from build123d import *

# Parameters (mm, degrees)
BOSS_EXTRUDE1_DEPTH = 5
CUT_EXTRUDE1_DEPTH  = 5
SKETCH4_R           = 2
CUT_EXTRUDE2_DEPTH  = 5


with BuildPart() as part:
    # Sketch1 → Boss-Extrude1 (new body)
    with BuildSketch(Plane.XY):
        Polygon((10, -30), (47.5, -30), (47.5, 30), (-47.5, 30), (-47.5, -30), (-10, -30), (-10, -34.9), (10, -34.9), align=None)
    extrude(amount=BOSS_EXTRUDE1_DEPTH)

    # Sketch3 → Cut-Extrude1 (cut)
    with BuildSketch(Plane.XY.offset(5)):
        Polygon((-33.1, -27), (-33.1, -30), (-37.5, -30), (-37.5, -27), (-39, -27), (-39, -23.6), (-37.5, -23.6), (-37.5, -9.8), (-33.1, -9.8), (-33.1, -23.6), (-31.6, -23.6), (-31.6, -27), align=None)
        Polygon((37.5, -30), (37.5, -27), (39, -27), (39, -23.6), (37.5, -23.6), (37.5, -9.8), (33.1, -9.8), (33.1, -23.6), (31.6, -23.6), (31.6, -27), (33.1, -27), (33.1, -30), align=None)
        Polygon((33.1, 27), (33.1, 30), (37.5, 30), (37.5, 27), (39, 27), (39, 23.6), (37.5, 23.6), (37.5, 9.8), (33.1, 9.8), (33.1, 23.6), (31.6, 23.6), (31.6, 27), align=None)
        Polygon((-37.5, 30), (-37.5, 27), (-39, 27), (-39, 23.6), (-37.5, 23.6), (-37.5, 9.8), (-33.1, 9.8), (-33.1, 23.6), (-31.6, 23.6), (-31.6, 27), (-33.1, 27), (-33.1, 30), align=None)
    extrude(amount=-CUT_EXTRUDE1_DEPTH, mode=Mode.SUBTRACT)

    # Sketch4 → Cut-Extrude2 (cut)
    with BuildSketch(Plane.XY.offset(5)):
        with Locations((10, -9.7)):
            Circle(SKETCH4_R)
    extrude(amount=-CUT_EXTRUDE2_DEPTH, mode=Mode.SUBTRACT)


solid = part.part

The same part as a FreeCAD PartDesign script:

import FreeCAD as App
import Part
import Sketcher
from FreeCAD import Vector
Q = App.Units.Quantity

doc = App.newDocument("Part")
params = doc.addObject("Spreadsheet::Sheet", "Params")
for row, (alias, value) in enumerate([
    ("sketch1_width", "95 mm"),
    ("sketch1_width2", "20 mm"),
    ("sketch1_height", "60 mm"),
    ("sketch1_height2", "4.9 mm"),
    ("pad1_length", "5 mm"),
    ("sketch2_height", "3 mm"),
    ("sketch2_width", "1.5 mm"),
    ("sketch2_width2", "4.4 mm"),
    ("sketch2_height2", "3.4 mm"),
    ("sketch2_height3", "13.8 mm"),
    ("pocket1_length", "5 mm"),
    ("sketch3_diameter", "4 mm"),
    ("pocket2_length", "5 mm"),
], start=1):
    params.set(f"A{row}", alias)
    params.set(f"B{row}", "=" + value)
    params.setAlias(f"B{row}", alias)

body = doc.addObject("PartDesign::Body", "Body")

sketch1 = doc.addObject("Sketcher::SketchObject", "Sketch")
body.addObject(sketch1)
sketch1.AttachmentSupport = (doc.XY_Plane, [""])
sketch1.MapMode = "FlatFace"
sketch1.addGeometry([
    Part.LineSegment(Vector(10, -30, 0), Vector(47.5, -30, 0)),
    Part.LineSegment(Vector(47.5, -30, 0), Vector(47.5, 30, 0)),
    Part.LineSegment(Vector(47.5, 30, 0), Vector(-47.5, 30, 0)),
    Part.LineSegment(Vector(-47.5, 30, 0), Vector(-47.5, -30, 0)),
    Part.LineSegment(Vector(-47.5, -30, 0), Vector(-10, -30, 0)),
    Part.LineSegment(Vector(-10, -30, 0), Vector(-10, -34.9, 0)),
    Part.LineSegment(Vector(-10, -34.9, 0), Vector(10, -34.9, 0)),
    Part.LineSegment(Vector(10, -34.9, 0), Vector(10, -30, 0)),
], False)
sketch1.addConstraint([
    Sketcher.Constraint("Coincident", 0, 2, 1, 1),
    Sketcher.Constraint("Coincident", 1, 2, 2, 1),
    Sketcher.Constraint("Coincident", 2, 2, 3, 1),
    Sketcher.Constraint("Coincident", 3, 2, 4, 1),
    Sketcher.Constraint("Coincident", 4, 2, 5, 1),
    Sketcher.Constraint("Coincident", 5, 2, 6, 1),
    Sketcher.Constraint("Coincident", 6, 2, 7, 1),
    Sketcher.Constraint("Coincident", 7, 2, 0, 1),
    Sketcher.Constraint("Horizontal", 0),
    Sketcher.Constraint("Vertical", 1),
    Sketcher.Constraint("Horizontal", 2),
    Sketcher.Constraint("Vertical", 3),
    Sketcher.Constraint("Horizontal", 4),
    Sketcher.Constraint("Vertical", 5),
    Sketcher.Constraint("Horizontal", 6),
    Sketcher.Constraint("Vertical", 7),
    Sketcher.Constraint("Symmetric", 0, 2, 2, 2, -1, 1),
    Sketcher.Constraint("Symmetric", 4, 2, 7, 2, -2),
    Sketcher.Constraint("DistanceX", 2, 2, 2, 1, Q("95 mm")),
    Sketcher.Constraint("DistanceX", 6, 1, 6, 2, Q("20 mm")),
    Sketcher.Constraint("DistanceY", 1, 1, 1, 2, Q("60 mm")),
    Sketcher.Constraint("DistanceY", 5, 2, 5, 1, Q("4.9 mm")),
])
sketch1.setExpression("Constraints[18]", "Params.sketch1_width")
sketch1.setExpression("Constraints[19]", "Params.sketch1_width2")
sketch1.setExpression("Constraints[20]", "Params.sketch1_height")
sketch1.setExpression("Constraints[21]", "Params.sketch1_height2")
pad1 = doc.addObject("PartDesign::Pad", "Pad")
body.addObject(pad1)
pad1.Profile = sketch1
pad1.setExpression("Length", "Params.pad1_length")

sketch2 = doc.addObject("Sketcher::SketchObject", "Sketch001")
body.addObject(sketch2)
sketch2.AttachmentSupport = (doc.XY_Plane, [""])
sketch2.MapMode = "FlatFace"
sketch2.AttachmentOffset = App.Placement(Vector(0, 0, 5), App.Rotation())
sketch2.addGeometry([
    Part.LineSegment(Vector(-33.1, -30, 0), Vector(-33.1, -27, 0)),
    Part.LineSegment(Vector(-33.1, -27, 0), Vector(-31.6, -27, 0)),
    Part.LineSegment(Vector(-31.6, -27, 0), Vector(-31.6, -23.6, 0)),
    Part.LineSegment(Vector(-31.6, -23.6, 0), Vector(-33.1, -23.6, 0)),
    Part.LineSegment(Vector(-33.1, -23.6, 0), Vector(-33.1, -9.8, 0)),
    Part.LineSegment(Vector(-33.1, -9.8, 0), Vector(-37.5, -9.8, 0)),
    Part.LineSegment(Vector(-37.5, -9.8, 0), Vector(-37.5, -23.6, 0)),
    Part.LineSegment(Vector(-37.5, -23.6, 0), Vector(-39, -23.6, 0)),
    Part.LineSegment(Vector(-39, -23.6, 0), Vector(-39, -27, 0)),
    Part.LineSegment(Vector(-39, -27, 0), Vector(-37.5, -27, 0)),
    Part.LineSegment(Vector(-37.5, -27, 0), Vector(-37.5, -30, 0)),
    Part.LineSegment(Vector(-37.5, -30, 0), Vector(-33.1, -30, 0)),
    Part.LineSegment(Vector(37.5, -30, 0), Vector(37.5, -27, 0)),
    Part.LineSegment(Vector(37.5, -27, 0), Vector(39, -27, 0)),
    Part.LineSegment(Vector(39, -27, 0), Vector(39, -23.6, 0)),
    Part.LineSegment(Vector(39, -23.6, 0), Vector(37.5, -23.6, 0)),
    Part.LineSegment(Vector(37.5, -23.6, 0), Vector(37.5, -9.8, 0)),
    Part.LineSegment(Vector(37.5, -9.8, 0), Vector(33.1, -9.8, 0)),
    Part.LineSegment(Vector(33.1, -9.8, 0), Vector(33.1, -23.6, 0)),
    Part.LineSegment(Vector(33.1, -23.6, 0), Vector(31.6, -23.6, 0)),
    Part.LineSegment(Vector(31.6, -23.6, 0), Vector(31.6, -27, 0)),
    Part.LineSegment(Vector(31.6, -27, 0), Vector(33.1, -27, 0)),
    Part.LineSegment(Vector(33.1, -27, 0), Vector(33.1, -30, 0)),
    Part.LineSegment(Vector(33.1, -30, 0), Vector(37.5, -30, 0)),
    Part.LineSegment(Vector(33.1, 30, 0), Vector(33.1, 27, 0)),
    Part.LineSegment(Vector(33.1, 27, 0), Vector(31.6, 27, 0)),
    Part.LineSegment(Vector(31.6, 27, 0), Vector(31.6, 23.6, 0)),
    Part.LineSegment(Vector(31.6, 23.6, 0), Vector(33.1, 23.6, 0)),
    Part.LineSegment(Vector(33.1, 23.6, 0), Vector(33.1, 9.8, 0)),
    Part.LineSegment(Vector(33.1, 9.8, 0), Vector(37.5, 9.8, 0)),
    Part.LineSegment(Vector(37.5, 9.8, 0), Vector(37.5, 23.6, 0)),
    Part.LineSegment(Vector(37.5, 23.6, 0), Vector(39, 23.6, 0)),
    Part.LineSegment(Vector(39, 23.6, 0), Vector(39, 27, 0)),
    Part.LineSegment(Vector(39, 27, 0), Vector(37.5, 27, 0)),
    Part.LineSegment(Vector(37.5, 27, 0), Vector(37.5, 30, 0)),
    Part.LineSegment(Vector(37.5, 30, 0), Vector(33.1, 30, 0)),
    Part.LineSegment(Vector(-37.5, 30, 0), Vector(-37.5, 27, 0)),
    Part.LineSegment(Vector(-37.5, 27, 0), Vector(-39, 27, 0)),
    Part.LineSegment(Vector(-39, 27, 0), Vector(-39, 23.6, 0)),
    Part.LineSegment(Vector(-39, 23.6, 0), Vector(-37.5, 23.6, 0)),
    Part.LineSegment(Vector(-37.5, 23.6, 0), Vector(-37.5, 9.8, 0)),
    Part.LineSegment(Vector(-37.5, 9.8, 0), Vector(-33.1, 9.8, 0)),
    Part.LineSegment(Vector(-33.1, 9.8, 0), Vector(-33.1, 23.6, 0)),
    Part.LineSegment(Vector(-33.1, 23.6, 0), Vector(-31.6, 23.6, 0)),
    Part.LineSegment(Vector(-31.6, 23.6, 0), Vector(-31.6, 27, 0)),
    Part.LineSegment(Vector(-31.6, 27, 0), Vector(-33.1, 27, 0)),
    Part.LineSegment(Vector(-33.1, 27, 0), Vector(-33.1, 30, 0)),
    Part.LineSegment(Vector(-33.1, 30, 0), Vector(-37.5, 30, 0)),
], False)
sketch2.addConstraint([
    Sketcher.Constraint("Coincident", 0, 2, 1, 1),
    Sketcher.Constraint("Coincident", 1, 2, 2, 1),
    Sketcher.Constraint("Coincident", 2, 2, 3, 1),
    Sketcher.Constraint("Coincident", 3, 2, 4, 1),
    Sketcher.Constraint("Coincident", 4, 2, 5, 1),
    Sketcher.Constraint("Coincident", 5, 2, 6, 1),
    Sketcher.Constraint("Coincident", 6, 2, 7, 1),
    Sketcher.Constraint("Coincident", 7, 2, 8, 1),
    Sketcher.Constraint("Coincident", 8, 2, 9, 1),
    Sketcher.Constraint("Coincident", 9, 2, 10, 1),
    Sketcher.Constraint("Coincident", 10, 2, 11, 1),
    Sketcher.Constraint("Coincident", 11, 2, 0, 1),
    Sketcher.Constraint("Coincident", 12, 2, 13, 1),
    Sketcher.Constraint("Coincident", 13, 2, 14, 1),
    Sketcher.Constraint("Coincident", 14, 2, 15, 1),
    Sketcher.Constraint("Coincident", 15, 2, 16, 1),
    Sketcher.Constraint("Coincident", 16, 2, 17, 1),
    Sketcher.Constraint("Coincident", 17, 2, 18, 1),
    Sketcher.Constraint("Coincident", 18, 2, 19, 1),
    Sketcher.Constraint("Coincident", 19, 2, 20, 1),
    Sketcher.Constraint("Coincident", 20, 2, 21, 1),
    Sketcher.Constraint("Coincident", 21, 2, 22, 1),
    Sketcher.Constraint("Coincident", 22, 2, 23, 1),
    Sketcher.Constraint("Coincident", 23, 2, 12, 1),
    Sketcher.Constraint("Coincident", 24, 2, 25, 1),
    Sketcher.Constraint("Coincident", 25, 2, 26, 1),
    Sketcher.Constraint("Coincident", 26, 2, 27, 1),
    Sketcher.Constraint("Coincident", 27, 2, 28, 1),
    Sketcher.Constraint("Coincident", 28, 2, 29, 1),
    Sketcher.Constraint("Coincident", 29, 2, 30, 1),
    Sketcher.Constraint("Coincident", 30, 2, 31, 1),
    Sketcher.Constraint("Coincident", 31, 2, 32, 1),
    Sketcher.Constraint("Coincident", 32, 2, 33, 1),
    Sketcher.Constraint("Coincident", 33, 2, 34, 1),
    Sketcher.Constraint("Coincident", 34, 2, 35, 1),
    Sketcher.Constraint("Coincident", 35, 2, 24, 1),
    Sketcher.Constraint("Coincident", 36, 2, 37, 1),
    Sketcher.Constraint("Coincident", 37, 2, 38, 1),
    Sketcher.Constraint("Coincident", 38, 2, 39, 1),
    Sketcher.Constraint("Coincident", 39, 2, 40, 1),
    Sketcher.Constraint("Coincident", 40, 2, 41, 1),
    Sketcher.Constraint("Coincident", 41, 2, 42, 1),
    Sketcher.Constraint("Coincident", 42, 2, 43, 1),
    Sketcher.Constraint("Coincident", 43, 2, 44, 1),
    Sketcher.Constraint("Coincident", 44, 2, 45, 1),
    Sketcher.Constraint("Coincident", 45, 2, 46, 1),
    Sketcher.Constraint("Coincident", 46, 2, 47, 1),
    Sketcher.Constraint("Coincident", 47, 2, 36, 1),
    Sketcher.Constraint("Vertical", 0),
    Sketcher.Constraint("Horizontal", 1),
    Sketcher.Constraint("Vertical", 2),
    Sketcher.Constraint("Horizontal", 3),
    Sketcher.Constraint("Vertical", 4),
    Sketcher.Constraint("Horizontal", 5),
    Sketcher.Constraint("Vertical", 6),
    Sketcher.Constraint("Horizontal", 7),
    Sketcher.Constraint("Vertical", 8),
    Sketcher.Constraint("Horizontal", 9),
    Sketcher.Constraint("Vertical", 10),
    Sketcher.Constraint("Horizontal", 11),
    Sketcher.Constraint("Vertical", 12),
    Sketcher.Constraint("Horizontal", 13),
    Sketcher.Constraint("Vertical", 14),
    Sketcher.Constraint("Horizontal", 15),
    Sketcher.Constraint("Vertical", 16),
    Sketcher.Constraint("Horizontal", 17),
    Sketcher.Constraint("Vertical", 18),
    Sketcher.Constraint("Horizontal", 19),
    Sketcher.Constraint("Vertical", 20),
    Sketcher.Constraint("Horizontal", 21),
    Sketcher.Constraint("Vertical", 22),
    Sketcher.Constraint("Horizontal", 23),
    Sketcher.Constraint("Vertical", 24),
    Sketcher.Constraint("Horizontal", 25),
    Sketcher.Constraint("Vertical", 26),
    Sketcher.Constraint("Horizontal", 27),
    Sketcher.Constraint("Vertical", 28),
    Sketcher.Constraint("Horizontal", 29),
    Sketcher.Constraint("Vertical", 30),
    Sketcher.Constraint("Horizontal", 31),
    Sketcher.Constraint("Vertical", 32),
    Sketcher.Constraint("Horizontal", 33),
    Sketcher.Constraint("Vertical", 34),
    Sketcher.Constraint("Horizontal", 35),
    Sketcher.Constraint("Vertical", 36),
    Sketcher.Constraint("Horizontal", 37),
    Sketcher.Constraint("Vertical", 38),
    Sketcher.Constraint("Horizontal", 39),
    Sketcher.Constraint("Vertical", 40),
    Sketcher.Constraint("Horizontal", 41),
    Sketcher.Constraint("Vertical", 42),
    Sketcher.Constraint("Horizontal", 43),
    Sketcher.Constraint("Vertical", 44),
    Sketcher.Constraint("Horizontal", 45),
    Sketcher.Constraint("Vertical", 46),
    Sketcher.Constraint("Horizontal", 47),
    Sketcher.Constraint("Symmetric", 0, 2, 24, 2, -1, 1),
    Sketcher.Constraint("Symmetric", 2, 2, 26, 2, -1, 1),
    Sketcher.Constraint("Symmetric", 4, 2, 28, 2, -1, 1),
    Sketcher.Constraint("Symmetric", 6, 2, 30, 2, -1, 1),
    Sketcher.Constraint("Symmetric", 8, 2, 32, 2, -1, 1),
    Sketcher.Constraint("Symmetric", 10, 2, 34, 2, -1, 1),
    Sketcher.Constraint("Symmetric", 12, 2, 36, 2, -1, 1),
    Sketcher.Constraint("Symmetric", 14, 2, 38, 2, -1, 1),
    Sketcher.Constraint("Symmetric", 16, 2, 40, 2, -1, 1),
    Sketcher.Constraint("Symmetric", 18, 2, 42, 2, -1, 1),
    Sketcher.Constraint("Symmetric", 20, 2, 44, 2, -1, 1),
    Sketcher.Constraint("Symmetric", 22, 2, 46, 2, -1, 1),
    Sketcher.Constraint("Symmetric", 9, 2, 12, 2, -2),
    Sketcher.Constraint("Symmetric", 7, 2, 14, 2, -2),
    Sketcher.Constraint("Symmetric", 5, 2, 16, 2, -2),
    Sketcher.Constraint("Symmetric", 3, 2, 18, 2, -2),
    Sketcher.Constraint("Symmetric", 1, 2, 20, 2, -2),
    Sketcher.Constraint("Symmetric", 11, 2, 22, 2, -2),
    Sketcher.Constraint("Horizontal", 3, 2, 6, 2),
    Sketcher.Constraint("Horizontal", 1, 2, 8, 2),
    Sketcher.Constraint("Vertical", 0, 2, 3, 2),
    Sketcher.Constraint("Vertical", 6, 2, 9, 2),
    Sketcher.Constraint("Equal", 3, 7),
    Sketcher.Constraint("DistanceY", 0, 1, 0, 2, Q("3 mm")),
    Sketcher.Constraint("DistanceX", 1, 1, 1, 2, Q("1.5 mm")),
    Sketcher.Constraint("DistanceX", 5, 2, 5, 1, Q("4.4 mm")),
    Sketcher.Constraint("DistanceY", 2, 1, 2, 2, Q("3.4 mm")),
    Sketcher.Constraint("DistanceY", 4, 1, 4, 2, Q("13.8 mm")),
    Sketcher.Constraint("DistanceY", 0, 2, -1, 1, Q("27 mm")),
    Sketcher.Constraint("DistanceX", 7, 2, -1, 1, Q("39 mm")),
])
sketch2.setExpression("Constraints[119]", "Params.sketch2_height")
sketch2.setExpression("Constraints[120]", "Params.sketch2_width")
sketch2.setExpression("Constraints[121]", "Params.sketch2_width2")
sketch2.setExpression("Constraints[122]", "Params.sketch2_height2")
sketch2.setExpression("Constraints[123]", "Params.sketch2_height3")
pocket1 = doc.addObject("PartDesign::Pocket", "Pocket")
body.addObject(pocket1)
pocket1.Profile = sketch2
pocket1.setExpression("Length", "Params.pocket1_length")

sketch3 = doc.addObject("Sketcher::SketchObject", "Sketch002")
body.addObject(sketch3)
sketch3.AttachmentSupport = (doc.XY_Plane, [""])
sketch3.MapMode = "FlatFace"
sketch3.AttachmentOffset = App.Placement(Vector(0, 0, 5), App.Rotation())
sketch3.addGeometry(Part.Circle(Vector(10, -9.7, 0), Vector(0, 0, 1), 2), False)
sketch3.addConstraint([
    Sketcher.Constraint("Diameter", 0, Q("4 mm")),
    Sketcher.Constraint("DistanceX", -1, 1, 0, 3, Q("10 mm")),
    Sketcher.Constraint("DistanceY", 0, 3, -1, 1, Q("9.7 mm")),
])
sketch3.setExpression("Constraints[0]", "Params.sketch3_diameter")
pocket2 = doc.addObject("PartDesign::Pocket", "Pocket001")
body.addObject(pocket2)
pocket2.Profile = sketch3
pocket2.setExpression("Length", "Params.pocket2_length")

doc.recompute()
